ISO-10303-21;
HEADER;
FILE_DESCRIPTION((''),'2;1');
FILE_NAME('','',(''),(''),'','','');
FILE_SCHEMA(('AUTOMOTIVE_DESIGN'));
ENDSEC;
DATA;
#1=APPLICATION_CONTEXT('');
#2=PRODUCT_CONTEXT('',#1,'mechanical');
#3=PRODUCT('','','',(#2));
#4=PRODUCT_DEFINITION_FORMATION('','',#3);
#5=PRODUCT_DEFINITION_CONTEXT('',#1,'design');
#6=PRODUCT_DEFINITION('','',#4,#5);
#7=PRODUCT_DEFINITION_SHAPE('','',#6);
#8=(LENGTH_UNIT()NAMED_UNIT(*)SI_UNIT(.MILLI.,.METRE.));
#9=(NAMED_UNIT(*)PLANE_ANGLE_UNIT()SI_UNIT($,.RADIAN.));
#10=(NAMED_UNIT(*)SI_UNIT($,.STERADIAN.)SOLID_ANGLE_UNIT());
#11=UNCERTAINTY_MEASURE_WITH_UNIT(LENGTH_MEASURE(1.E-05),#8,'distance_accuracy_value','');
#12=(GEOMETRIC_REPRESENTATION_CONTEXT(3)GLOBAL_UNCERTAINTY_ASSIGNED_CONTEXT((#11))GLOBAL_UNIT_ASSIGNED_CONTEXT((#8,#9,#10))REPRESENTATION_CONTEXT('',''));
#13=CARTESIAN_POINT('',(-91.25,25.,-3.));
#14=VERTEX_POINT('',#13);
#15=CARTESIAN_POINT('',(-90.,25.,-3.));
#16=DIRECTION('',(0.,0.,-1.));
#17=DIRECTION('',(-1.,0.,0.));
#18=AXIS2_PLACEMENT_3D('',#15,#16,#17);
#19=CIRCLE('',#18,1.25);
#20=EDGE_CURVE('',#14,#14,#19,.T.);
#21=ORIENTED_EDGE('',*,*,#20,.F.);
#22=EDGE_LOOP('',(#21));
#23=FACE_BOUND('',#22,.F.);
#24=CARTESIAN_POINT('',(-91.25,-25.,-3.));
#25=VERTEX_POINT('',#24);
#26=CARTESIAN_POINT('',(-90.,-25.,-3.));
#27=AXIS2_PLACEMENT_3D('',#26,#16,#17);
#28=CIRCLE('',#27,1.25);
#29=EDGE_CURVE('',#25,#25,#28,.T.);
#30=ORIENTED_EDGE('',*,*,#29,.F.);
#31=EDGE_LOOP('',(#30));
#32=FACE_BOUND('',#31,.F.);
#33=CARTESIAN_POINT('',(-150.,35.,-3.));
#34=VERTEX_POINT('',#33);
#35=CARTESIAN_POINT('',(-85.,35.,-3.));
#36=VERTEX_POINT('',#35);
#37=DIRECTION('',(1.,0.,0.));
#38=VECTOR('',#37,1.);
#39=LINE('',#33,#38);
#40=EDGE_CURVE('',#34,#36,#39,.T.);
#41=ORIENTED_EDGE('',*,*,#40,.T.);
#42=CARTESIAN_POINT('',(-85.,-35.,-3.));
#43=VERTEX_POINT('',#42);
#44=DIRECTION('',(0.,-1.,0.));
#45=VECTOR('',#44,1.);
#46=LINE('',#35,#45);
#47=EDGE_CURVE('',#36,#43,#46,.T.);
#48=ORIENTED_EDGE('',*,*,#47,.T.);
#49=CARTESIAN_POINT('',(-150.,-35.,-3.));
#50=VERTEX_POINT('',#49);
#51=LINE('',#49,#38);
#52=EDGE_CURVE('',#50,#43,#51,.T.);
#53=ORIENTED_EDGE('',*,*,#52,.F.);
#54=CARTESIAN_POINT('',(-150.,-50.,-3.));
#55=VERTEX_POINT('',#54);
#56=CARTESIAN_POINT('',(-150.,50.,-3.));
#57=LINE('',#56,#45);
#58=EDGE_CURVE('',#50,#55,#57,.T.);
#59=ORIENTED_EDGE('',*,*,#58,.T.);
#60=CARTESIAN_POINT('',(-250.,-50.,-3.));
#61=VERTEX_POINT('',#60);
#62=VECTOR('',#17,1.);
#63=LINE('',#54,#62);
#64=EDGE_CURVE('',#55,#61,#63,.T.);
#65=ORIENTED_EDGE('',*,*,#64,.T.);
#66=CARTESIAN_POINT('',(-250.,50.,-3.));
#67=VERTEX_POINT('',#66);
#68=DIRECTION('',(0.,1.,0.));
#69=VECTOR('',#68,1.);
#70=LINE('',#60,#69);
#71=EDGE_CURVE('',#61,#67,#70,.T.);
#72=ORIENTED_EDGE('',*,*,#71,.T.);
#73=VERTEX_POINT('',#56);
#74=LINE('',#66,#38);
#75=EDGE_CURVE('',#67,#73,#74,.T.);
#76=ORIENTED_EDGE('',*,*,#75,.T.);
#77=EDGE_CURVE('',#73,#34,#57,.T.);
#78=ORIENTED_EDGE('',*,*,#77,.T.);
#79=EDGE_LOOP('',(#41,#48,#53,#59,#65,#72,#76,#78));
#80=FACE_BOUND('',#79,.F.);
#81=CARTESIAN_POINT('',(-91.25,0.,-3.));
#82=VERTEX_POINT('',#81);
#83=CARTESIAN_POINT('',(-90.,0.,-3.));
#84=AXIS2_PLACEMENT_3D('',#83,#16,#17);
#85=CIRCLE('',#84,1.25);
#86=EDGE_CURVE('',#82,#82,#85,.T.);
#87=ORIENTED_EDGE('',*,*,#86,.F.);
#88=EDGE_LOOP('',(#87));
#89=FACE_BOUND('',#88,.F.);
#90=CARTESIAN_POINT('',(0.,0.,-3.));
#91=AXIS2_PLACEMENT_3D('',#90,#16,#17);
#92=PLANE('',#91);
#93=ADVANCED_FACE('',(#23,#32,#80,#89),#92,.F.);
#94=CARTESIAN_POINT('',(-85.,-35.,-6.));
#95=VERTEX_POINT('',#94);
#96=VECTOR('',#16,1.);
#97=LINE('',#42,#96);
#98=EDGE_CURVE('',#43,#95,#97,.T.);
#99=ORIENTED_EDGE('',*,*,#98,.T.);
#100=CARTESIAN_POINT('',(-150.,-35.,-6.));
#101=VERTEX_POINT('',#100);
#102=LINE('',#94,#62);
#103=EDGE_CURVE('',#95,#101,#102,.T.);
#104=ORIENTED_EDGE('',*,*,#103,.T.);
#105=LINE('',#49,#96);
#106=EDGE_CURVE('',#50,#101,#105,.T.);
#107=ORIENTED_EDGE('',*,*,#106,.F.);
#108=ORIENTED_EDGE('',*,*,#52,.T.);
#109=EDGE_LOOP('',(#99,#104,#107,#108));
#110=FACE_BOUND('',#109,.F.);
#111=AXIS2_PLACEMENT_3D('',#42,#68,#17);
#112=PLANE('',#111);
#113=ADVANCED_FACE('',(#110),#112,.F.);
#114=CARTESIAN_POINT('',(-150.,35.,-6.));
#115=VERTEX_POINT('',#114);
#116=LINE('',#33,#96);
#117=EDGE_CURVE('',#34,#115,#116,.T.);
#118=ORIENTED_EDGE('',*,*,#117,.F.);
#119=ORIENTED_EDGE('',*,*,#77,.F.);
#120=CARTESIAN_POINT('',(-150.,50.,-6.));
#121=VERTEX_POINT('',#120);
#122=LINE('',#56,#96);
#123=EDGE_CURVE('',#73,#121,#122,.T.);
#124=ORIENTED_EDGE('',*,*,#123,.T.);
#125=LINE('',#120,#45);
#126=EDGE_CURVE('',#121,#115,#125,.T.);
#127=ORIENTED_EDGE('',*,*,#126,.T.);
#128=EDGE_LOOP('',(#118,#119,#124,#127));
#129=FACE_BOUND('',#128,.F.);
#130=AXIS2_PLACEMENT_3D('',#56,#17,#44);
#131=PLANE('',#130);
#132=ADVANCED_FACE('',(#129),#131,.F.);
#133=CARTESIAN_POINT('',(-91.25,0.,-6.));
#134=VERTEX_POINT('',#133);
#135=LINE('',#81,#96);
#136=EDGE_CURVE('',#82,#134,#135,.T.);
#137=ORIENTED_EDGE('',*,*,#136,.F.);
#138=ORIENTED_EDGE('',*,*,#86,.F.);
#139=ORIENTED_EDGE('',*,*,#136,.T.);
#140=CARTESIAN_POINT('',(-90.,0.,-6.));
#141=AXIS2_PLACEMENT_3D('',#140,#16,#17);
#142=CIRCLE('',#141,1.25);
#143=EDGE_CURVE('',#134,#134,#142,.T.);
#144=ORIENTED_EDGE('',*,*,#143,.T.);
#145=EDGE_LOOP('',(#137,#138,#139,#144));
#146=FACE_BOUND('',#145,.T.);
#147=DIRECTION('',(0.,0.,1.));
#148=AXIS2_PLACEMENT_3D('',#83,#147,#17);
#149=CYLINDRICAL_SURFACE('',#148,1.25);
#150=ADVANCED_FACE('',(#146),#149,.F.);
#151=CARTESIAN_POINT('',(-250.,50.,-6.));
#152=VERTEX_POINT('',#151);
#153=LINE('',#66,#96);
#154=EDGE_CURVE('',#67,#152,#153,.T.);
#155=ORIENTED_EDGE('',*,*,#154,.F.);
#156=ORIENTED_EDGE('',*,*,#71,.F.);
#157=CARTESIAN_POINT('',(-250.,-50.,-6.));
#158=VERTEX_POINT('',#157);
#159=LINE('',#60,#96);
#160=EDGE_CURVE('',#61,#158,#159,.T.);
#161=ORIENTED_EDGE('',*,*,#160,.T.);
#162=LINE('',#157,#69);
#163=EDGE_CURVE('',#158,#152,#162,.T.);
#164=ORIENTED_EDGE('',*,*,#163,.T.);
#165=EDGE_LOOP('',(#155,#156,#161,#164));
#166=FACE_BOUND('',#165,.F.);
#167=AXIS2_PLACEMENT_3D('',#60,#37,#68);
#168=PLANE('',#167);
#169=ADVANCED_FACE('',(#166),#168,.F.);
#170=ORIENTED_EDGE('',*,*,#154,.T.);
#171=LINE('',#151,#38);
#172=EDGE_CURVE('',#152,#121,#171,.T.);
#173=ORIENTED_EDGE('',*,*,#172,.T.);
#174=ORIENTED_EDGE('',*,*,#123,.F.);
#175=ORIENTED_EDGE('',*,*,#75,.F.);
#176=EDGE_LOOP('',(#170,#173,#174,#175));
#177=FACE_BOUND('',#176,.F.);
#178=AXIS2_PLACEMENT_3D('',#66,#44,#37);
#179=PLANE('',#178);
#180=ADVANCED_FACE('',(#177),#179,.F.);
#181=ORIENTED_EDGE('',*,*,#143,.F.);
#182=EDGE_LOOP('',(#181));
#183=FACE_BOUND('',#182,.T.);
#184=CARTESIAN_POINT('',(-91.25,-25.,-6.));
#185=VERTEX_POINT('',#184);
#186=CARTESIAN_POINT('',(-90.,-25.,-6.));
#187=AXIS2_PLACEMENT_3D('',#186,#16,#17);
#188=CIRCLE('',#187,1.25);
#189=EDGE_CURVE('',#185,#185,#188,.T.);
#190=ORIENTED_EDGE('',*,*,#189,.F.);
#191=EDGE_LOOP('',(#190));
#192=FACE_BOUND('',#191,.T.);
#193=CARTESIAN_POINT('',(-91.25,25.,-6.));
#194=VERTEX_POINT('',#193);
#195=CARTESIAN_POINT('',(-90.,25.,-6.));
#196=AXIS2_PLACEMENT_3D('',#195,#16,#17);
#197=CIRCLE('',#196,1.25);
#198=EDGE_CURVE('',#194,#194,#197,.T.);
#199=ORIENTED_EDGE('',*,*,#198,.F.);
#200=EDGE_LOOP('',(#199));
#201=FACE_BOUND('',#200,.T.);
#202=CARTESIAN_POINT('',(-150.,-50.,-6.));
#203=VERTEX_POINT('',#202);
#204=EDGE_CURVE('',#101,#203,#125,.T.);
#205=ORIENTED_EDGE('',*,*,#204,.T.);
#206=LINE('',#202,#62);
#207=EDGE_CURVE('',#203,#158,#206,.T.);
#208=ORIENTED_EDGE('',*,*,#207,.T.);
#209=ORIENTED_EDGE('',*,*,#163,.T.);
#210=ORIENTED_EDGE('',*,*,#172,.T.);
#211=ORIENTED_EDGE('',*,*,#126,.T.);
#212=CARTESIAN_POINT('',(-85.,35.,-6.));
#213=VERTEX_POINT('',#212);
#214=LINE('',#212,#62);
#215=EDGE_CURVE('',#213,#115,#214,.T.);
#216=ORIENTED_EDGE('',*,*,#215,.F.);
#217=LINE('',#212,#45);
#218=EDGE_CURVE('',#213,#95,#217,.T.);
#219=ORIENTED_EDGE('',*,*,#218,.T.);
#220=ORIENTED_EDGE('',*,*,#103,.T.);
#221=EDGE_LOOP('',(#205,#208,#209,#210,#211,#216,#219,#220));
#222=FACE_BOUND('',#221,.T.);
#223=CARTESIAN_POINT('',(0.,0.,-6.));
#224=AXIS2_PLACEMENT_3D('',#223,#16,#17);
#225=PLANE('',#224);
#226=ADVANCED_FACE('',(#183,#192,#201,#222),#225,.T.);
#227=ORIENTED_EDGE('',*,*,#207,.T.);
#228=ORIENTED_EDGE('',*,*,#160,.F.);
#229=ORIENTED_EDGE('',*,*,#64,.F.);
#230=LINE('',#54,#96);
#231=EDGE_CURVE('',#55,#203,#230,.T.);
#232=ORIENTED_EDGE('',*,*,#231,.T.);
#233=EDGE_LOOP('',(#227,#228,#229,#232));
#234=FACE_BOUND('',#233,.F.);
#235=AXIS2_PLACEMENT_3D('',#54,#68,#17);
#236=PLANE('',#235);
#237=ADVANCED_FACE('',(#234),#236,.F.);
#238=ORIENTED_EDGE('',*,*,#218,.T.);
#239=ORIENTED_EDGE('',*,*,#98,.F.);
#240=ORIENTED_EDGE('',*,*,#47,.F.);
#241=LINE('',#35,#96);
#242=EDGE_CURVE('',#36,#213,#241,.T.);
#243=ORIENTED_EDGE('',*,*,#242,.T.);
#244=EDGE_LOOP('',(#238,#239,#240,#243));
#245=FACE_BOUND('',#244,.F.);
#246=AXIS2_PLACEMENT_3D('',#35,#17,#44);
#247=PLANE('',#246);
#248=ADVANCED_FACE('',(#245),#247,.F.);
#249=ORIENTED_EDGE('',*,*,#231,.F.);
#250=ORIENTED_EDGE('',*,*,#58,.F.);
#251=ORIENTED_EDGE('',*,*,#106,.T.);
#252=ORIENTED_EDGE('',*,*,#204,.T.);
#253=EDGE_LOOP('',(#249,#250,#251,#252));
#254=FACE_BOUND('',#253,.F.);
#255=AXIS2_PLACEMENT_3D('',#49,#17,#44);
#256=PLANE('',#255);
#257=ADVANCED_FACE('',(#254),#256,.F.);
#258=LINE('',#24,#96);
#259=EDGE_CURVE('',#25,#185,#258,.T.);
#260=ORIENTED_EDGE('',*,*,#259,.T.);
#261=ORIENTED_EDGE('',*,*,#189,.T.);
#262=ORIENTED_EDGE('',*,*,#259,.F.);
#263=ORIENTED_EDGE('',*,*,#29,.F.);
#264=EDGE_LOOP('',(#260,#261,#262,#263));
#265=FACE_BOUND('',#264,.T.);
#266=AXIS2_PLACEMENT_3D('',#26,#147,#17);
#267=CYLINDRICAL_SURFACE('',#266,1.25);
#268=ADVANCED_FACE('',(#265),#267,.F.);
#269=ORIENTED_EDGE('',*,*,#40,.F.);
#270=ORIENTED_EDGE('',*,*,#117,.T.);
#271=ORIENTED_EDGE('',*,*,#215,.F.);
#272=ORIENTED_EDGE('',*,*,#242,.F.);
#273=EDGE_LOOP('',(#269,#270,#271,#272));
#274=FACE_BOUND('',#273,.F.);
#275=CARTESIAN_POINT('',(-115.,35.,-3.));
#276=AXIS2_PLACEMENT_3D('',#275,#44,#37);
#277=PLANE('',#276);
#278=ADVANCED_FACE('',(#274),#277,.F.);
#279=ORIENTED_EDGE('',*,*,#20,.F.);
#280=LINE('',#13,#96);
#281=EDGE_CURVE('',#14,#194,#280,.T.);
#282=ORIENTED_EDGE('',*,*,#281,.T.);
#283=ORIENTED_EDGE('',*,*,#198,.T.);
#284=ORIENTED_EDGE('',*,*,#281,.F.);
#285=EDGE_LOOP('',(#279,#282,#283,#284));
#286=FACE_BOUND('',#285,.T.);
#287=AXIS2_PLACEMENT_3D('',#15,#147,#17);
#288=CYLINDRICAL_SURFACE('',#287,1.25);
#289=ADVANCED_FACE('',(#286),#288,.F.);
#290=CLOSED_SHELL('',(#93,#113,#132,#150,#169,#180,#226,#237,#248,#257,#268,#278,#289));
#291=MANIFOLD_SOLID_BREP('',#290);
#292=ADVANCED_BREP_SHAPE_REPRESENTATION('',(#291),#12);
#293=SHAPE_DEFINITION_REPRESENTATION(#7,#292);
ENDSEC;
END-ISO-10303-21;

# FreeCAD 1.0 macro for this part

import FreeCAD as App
import Part
import Sketcher
Q = App.Units.Quantity


def add_polygon(sketch, points):
    """Adds a closed chain of lines whose ends are joined by coincident constraints."""
    first, n = sketch.GeometryCount, len(points)
    for a, b in zip(points, points[1:] + points[:1]):
        sketch.addGeometry(Part.LineSegment(App.Vector(*a, 0), App.Vector(*b, 0)), False)
    for i in range(n):
        sketch.addConstraint(Sketcher.Constraint("Coincident", first + i, 2, first + (i + 1) % n, 1))

doc = App.newDocument("Part")
params = doc.addObject("Spreadsheet::Sheet", "Params")
for row, (alias, value) in enumerate([
    ("sketch1_width", "100 mm"),
    ("sketch1_height", "70 mm"),
    ("sketch1_diameter", "2.5 mm"),
    ("sketch1_width2", "65 mm"),
    ("pad1_length", "3 mm"),
], start=1):
    params.set(f"A{row}", alias)
    params.set(f"B{row}", "=" + value)
    params.setAlias(f"B{row}", alias)

body = doc.addObject("PartDesign::Body", "Body")

sketch1 = body.newObject("Sketcher::SketchObject", "Sketch")
sketch1.AttachmentSupport = (doc.getObject("XY_Plane"), [""])
sketch1.MapMode = "FlatFace"
sketch1.AttachmentOffset = App.Placement(App.Vector(0, 0, -3), App.Rotation())
add_polygon(sketch1, [(-85, 35), (-85, -35), (-150, -35), (-150, -50), (-250, -50), (-250, 50), (-150, 50), (-150, 35)])
sketch1.addGeometry(Part.Circle(App.Vector(-90, 25, 0), App.Vector(0, 0, 1), 1.25), False)
sketch1.addGeometry(Part.Circle(App.Vector(-90, 0, 0), App.Vector(0, 0, 1), 1.25), False)
sketch1.addGeometry(Part.Circle(App.Vector(-90, -25, 0), App.Vector(0, 0, 1), 1.25), False)
sketch1.addConstraint(Sketcher.Constraint("Vertical", 0))
sketch1.addConstraint(Sketcher.Constraint("Horizontal", 1))
sketch1.addConstraint(Sketcher.Constraint("Vertical", 2))
sketch1.addConstraint(Sketcher.Constraint("Horizontal", 3))
sketch1.addConstraint(Sketcher.Constraint("Vertical", 4))
sketch1.addConstraint(Sketcher.Constraint("Horizontal", 5))
sketch1.addConstraint(Sketcher.Constraint("Vertical", 6))
sketch1.addConstraint(Sketcher.Constraint("Horizontal", 7))
sketch1.addConstraint(Sketcher.Constraint("Equal", 8, 9))
sketch1.addConstraint(Sketcher.Constraint("Equal", 9, 10))
sketch1.addConstraint(Sketcher.Constraint("Symmetric", 8, 3, 10, 3, -1))
sketch1.addConstraint(Sketcher.Constraint("Symmetric", 2, 2, 5, 2, -1))
sketch1.addConstraint(Sketcher.Constraint("PointOnObject", 9, 3, -1))
sketch1.addConstraint(Sketcher.Constraint("Vertical", 8, 3, 9, 3))
sketch1.addConstraint(Sketcher.Constraint("Equal", 5, 4))
sketch1.addConstraint(Sketcher.Constraint("Equal", 2, 6))
sketch1.addConstraint(Sketcher.Constraint("DistanceX", 3, 2, 3, 1, Q("100 mm")))
sketch1.addConstraint(Sketcher.Constraint("DistanceY", 0, 2, 0, 1, Q("70 mm")))
sketch1.addConstraint(Sketcher.Constraint("Diameter", 8, Q("2.5 mm")))
sketch1.addConstraint(Sketcher.Constraint("DistanceX", 1, 2, 1, 1, Q("65 mm")))
sketch1.addConstraint(Sketcher.Constraint("DistanceX", 8, 3, -1, 1, Q("90 mm")))
sketch1.addConstraint(Sketcher.Constraint("DistanceY", -1, 1, 8, 3, Q("25 mm")))
sketch1.addConstraint(Sketcher.Constraint("DistanceX", 0, 2, -1, 1, Q("85 mm")))
sketch1.setExpression("Constraints[24]", "Params.sketch1_width")
sketch1.setExpression("Constraints[25]", "Params.sketch1_height")
sketch1.setExpression("Constraints[26]", "Params.sketch1_diameter")
sketch1.setExpression("Constraints[27]", "Params.sketch1_width2")
pad1 = body.newObject("PartDesign::Pad", "Pad")
pad1.Profile = sketch1
pad1.setExpression("Length", "Params.pad1_length")
pad1.Reversed = True

doc.recompute()
